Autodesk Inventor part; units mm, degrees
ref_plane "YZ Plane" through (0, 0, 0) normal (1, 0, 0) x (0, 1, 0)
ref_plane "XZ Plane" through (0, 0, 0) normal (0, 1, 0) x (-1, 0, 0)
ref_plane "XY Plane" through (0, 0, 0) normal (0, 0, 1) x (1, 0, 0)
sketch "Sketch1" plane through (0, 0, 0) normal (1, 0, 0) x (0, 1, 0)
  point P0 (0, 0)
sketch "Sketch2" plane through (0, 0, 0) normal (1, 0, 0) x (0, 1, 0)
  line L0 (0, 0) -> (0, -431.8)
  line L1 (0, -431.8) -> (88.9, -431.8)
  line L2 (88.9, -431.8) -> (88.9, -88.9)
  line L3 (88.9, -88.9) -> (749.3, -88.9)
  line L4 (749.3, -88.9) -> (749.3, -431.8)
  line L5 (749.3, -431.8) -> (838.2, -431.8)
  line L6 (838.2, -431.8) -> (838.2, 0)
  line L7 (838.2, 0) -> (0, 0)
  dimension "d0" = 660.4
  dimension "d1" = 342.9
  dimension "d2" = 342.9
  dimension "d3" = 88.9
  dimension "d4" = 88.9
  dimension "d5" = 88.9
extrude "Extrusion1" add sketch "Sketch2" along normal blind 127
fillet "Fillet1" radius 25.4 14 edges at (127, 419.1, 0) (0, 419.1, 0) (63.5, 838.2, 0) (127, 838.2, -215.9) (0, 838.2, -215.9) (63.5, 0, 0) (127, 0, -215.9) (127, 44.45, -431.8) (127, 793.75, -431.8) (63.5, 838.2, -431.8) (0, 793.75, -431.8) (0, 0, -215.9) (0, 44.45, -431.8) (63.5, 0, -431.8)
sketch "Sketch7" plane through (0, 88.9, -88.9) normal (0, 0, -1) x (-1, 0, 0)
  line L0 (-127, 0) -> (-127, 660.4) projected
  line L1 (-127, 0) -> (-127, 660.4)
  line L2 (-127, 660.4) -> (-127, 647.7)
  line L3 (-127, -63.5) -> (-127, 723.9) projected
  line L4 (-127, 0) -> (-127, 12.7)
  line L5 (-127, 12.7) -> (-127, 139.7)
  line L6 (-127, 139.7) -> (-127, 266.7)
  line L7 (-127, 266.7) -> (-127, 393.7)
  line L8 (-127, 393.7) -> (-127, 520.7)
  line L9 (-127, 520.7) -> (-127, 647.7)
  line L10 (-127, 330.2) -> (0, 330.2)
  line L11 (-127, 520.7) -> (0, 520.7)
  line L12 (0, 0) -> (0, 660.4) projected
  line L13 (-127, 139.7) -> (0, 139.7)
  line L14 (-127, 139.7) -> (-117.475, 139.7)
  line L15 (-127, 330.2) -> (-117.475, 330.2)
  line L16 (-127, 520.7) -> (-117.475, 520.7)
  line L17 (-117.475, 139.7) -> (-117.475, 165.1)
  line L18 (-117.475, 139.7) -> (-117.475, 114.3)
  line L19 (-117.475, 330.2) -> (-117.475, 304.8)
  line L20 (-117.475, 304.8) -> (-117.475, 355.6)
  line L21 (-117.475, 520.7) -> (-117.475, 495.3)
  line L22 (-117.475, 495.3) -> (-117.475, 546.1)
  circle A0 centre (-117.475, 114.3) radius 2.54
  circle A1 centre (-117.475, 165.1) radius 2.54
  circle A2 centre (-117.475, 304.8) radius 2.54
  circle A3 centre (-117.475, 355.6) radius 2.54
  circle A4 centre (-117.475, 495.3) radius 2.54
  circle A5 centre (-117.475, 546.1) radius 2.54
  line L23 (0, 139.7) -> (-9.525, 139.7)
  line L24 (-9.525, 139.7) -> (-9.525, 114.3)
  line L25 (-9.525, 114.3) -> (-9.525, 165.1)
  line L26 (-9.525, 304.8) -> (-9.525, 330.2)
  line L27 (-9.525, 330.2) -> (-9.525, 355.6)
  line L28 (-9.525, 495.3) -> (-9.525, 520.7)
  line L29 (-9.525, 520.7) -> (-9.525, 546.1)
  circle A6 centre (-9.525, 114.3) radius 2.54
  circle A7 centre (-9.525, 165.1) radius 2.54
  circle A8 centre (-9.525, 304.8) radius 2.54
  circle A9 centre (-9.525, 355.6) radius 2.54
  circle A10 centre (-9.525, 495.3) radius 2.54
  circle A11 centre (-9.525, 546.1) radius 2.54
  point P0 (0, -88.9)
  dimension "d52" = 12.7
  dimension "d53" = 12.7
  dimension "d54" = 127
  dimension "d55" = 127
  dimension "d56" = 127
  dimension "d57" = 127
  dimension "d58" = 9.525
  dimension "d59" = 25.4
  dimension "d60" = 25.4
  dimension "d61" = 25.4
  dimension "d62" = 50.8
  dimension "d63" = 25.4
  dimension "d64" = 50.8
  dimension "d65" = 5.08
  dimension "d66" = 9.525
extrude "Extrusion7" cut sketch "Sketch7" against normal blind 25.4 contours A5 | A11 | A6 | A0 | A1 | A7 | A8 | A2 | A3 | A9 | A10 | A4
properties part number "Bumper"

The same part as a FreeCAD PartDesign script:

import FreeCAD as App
import Part
import Sketcher
from FreeCAD import Vector
Q = App.Units.Quantity


def edges_at(feature, points):
    """Names of the edges that pass closest to the given points."""
    edges = feature.Shape.Edges
    near = lambda p: min(range(len(edges)), key=lambda i: edges[i].distToShape(Part.Vertex(*p))[0])
    return sorted({f"Edge{near(p) + 1}" for p in points})


def add_polygon(sketch, points):
    """Adds a closed chain of lines whose ends are joined by coincident constraints."""
    first, n = sketch.GeometryCount, len(points)
    for a, b in zip(points, points[1:] + points[:1]):
        sketch.addGeometry(Part.LineSegment(App.Vector(*a, 0), App.Vector(*b, 0)), False)
    for i in range(n):
        sketch.addConstraint(Sketcher.Constraint("Coincident", first + i, 2, first + (i + 1) % n, 1))

doc = App.newDocument("Part")
body = doc.addObject("PartDesign::Body", "Body")

# Sketch on YZ plane
sketch1 = body.newObject("Sketcher::SketchObject", "Sketch")
sketch1.AttachmentSupport = (doc.getObject("YZ_Plane"), [""])
sketch1.MapMode = "FlatFace"
add_polygon(sketch1, [(838.2, 0), (0, 0), (0, -431.8), (88.9, -431.8), (88.9, -88.9), (749.3, -88.9), (749.3, -431.8), (838.2, -431.8)])  # lines 0-7
sketch1.addConstraint([
    Sketcher.Constraint("Horizontal", 0),
    Sketcher.Constraint("Vertical", 1),
    Sketcher.Constraint("Horizontal", 2),
    Sketcher.Constraint("Vertical", 3),
    Sketcher.Constraint("Horizontal", 4),
    Sketcher.Constraint("Vertical", 5),
    Sketcher.Constraint("Horizontal", 6),
    Sketcher.Constraint("Vertical", 7),
    Sketcher.Constraint("Coincident", 0, 2, -1, 1),
    Sketcher.Constraint("Horizontal", 2, 2, 5, 2),
    Sketcher.Constraint("Equal", 2, 6),
    Sketcher.Constraint("DistanceX", 4, 1, 4, 2, Q("26 in")),
    Sketcher.Constraint("DistanceX", 2, 1, 2, 2, Q("3.5 in")),
    Sketcher.Constraint("DistanceY", 3, 1, 3, 2, Q("13.5 in")),
    Sketcher.Constraint("DistanceY", 3, 2, -1, 1, Q("3.5 in")),
])
pad1 = body.newObject("PartDesign::Pad", "Pad")
pad1.Profile = sketch1
pad1.Length = Q("5 in")
doc.recompute()

fillet = body.newObject("PartDesign::Fillet", "Fillet")
fillet.Base = (pad1, edges_at(pad1, [
    (127, 419.1, 0),
    (0, 419.1, 0),
    (63.5, 838.2, 0),
    (127, 838.2, -215.9),
    (0, 838.2, -215.9),
    (63.5, 0, 0),
    (127, 0, -215.9),
    (127, 44.45, -431.8),
    (127, 793.75, -431.8),
    (63.5, 838.2, -431.8),
    (0, 793.75, -431.8),
    (0, 0, -215.9),
    (0, 44.45, -431.8),
    (63.5, 0, -431.8),
]))
fillet.Radius = Q("1 in")

# Sketch on XY plane
sketch2 = body.newObject("Sketcher::SketchObject", "Sketch001")
sketch2.AttachmentSupport = (doc.getObject("XY_Plane"), [""])
sketch2.MapMode = "FlatFace"
sketch2.AttachmentOffset = App.Placement(Vector(0, 0, -3.5 * 25.4), App.Rotation())
sketch2.addGeometry([
    Part.Circle(Vector(117.475, 635, 0), Vector(0, 0, 1), 2.54),  # 0
    Part.Circle(Vector(9.525, 635, 0), Vector(0, 0, 1), 2.54),  # 1
    Part.Circle(Vector(9.525, 203.2, 0), Vector(0, 0, 1), 2.54),  # 2
    Part.Circle(Vector(117.475, 203.2, 0), Vector(0, 0, 1), 2.54),  # 3
    Part.Circle(Vector(117.475, 254, 0), Vector(0, 0, 1), 2.54),  # 4
    Part.Circle(Vector(9.525, 254, 0), Vector(0, 0, 1), 2.54),  # 5
    Part.Circle(Vector(9.525, 393.7, 0), Vector(0, 0, 1), 2.54),  # 6
    Part.Circle(Vector(117.475, 393.7, 0), Vector(0, 0, 1), 2.54),  # 7
    Part.Circle(Vector(117.475, 444.5, 0), Vector(0, 0, 1), 2.54),  # 8
    Part.Circle(Vector(9.525, 444.5, 0), Vector(0, 0, 1), 2.54),  # 9
    Part.Circle(Vector(9.525, 584.2, 0), Vector(0, 0, 1), 2.54),  # 10
    Part.Circle(Vector(117.475, 584.2, 0), Vector(0, 0, 1), 2.54),  # 11
], False)
sketch2.addConstraint([
    Sketcher.Constraint("Equal", 0, 1),
    Sketcher.Constraint("Equal", 1, 2),
    Sketcher.Constraint("Equal", 2, 3),
    Sketcher.Constraint("Equal", 3, 4),
    Sketcher.Constraint("Equal", 4, 5),
    Sketcher.Constraint("Equal", 5, 6),
    Sketcher.Constraint("Equal", 6, 7),
    Sketcher.Constraint("Equal", 7, 8),
    Sketcher.Constraint("Equal", 8, 9),
    Sketcher.Constraint("Equal", 9, 10),
    Sketcher.Constraint("Equal", 10, 11),
    Sketcher.Constraint("Horizontal", 0, 3, 1, 3),
    Sketcher.Constraint("Horizontal", 2, 3, 3, 3),
    Sketcher.Constraint("Horizontal", 4, 3, 5, 3),
    Sketcher.Constraint("Horizontal", 6, 3, 7, 3),
    Sketcher.Constraint("Horizontal", 8, 3, 9, 3),
    Sketcher.Constraint("Horizontal", 10, 3, 11, 3),
    Sketcher.Constraint("Vertical", 1, 3, 2, 3),
    Sketcher.Constraint("Vertical", 0, 3, 3, 3),
    Sketcher.Constraint("Vertical", 3, 3, 4, 3),
    Sketcher.Constraint("Vertical", 2, 3, 5, 3),
    Sketcher.Constraint("Vertical", 5, 3, 6, 3),
    Sketcher.Constraint("Vertical", 4, 3, 7, 3),
    Sketcher.Constraint("Vertical", 7, 3, 8, 3),
    Sketcher.Constraint("Vertical", 6, 3, 9, 3),
    Sketcher.Constraint("Vertical", 9, 3, 10, 3),
    Sketcher.Constraint("Vertical", 8, 3, 11, 3),
    Sketcher.Constraint("Diameter", 0, Q("0.2 in")),
    Sketcher.Constraint("DistanceY", 3, 3, 4, 3, Q("2 in")),
    Sketcher.Constraint("DistanceY", 7, 3, 8, 3, Q("2 in")),
    Sketcher.Constraint("DistanceY", 10, 3, 1, 3, Q("2 in")),
    Sketcher.Constraint("DistanceY", -1, 1, 0, 3, Q("25 in")),
    Sketcher.Constraint("DistanceX", -1, 1, 1, 3, Q("0.375 in")),
    Sketcher.Constraint("DistanceY", -1, 1, 2, 3, Q("8 in")),
    Sketcher.Constraint("DistanceY", -1, 1, 6, 3, Q("15.5 in")),
    Sketcher.Constraint("DistanceX", 1, 3, 0, 3, Q("4.25 in")),
])
pocket1 = body.newObject("PartDesign::Pocket", "Pocket")
pocket1.Profile = sketch2
pocket1.Length = Q("1 in")
pocket1.Reversed = True

doc.recompute()
